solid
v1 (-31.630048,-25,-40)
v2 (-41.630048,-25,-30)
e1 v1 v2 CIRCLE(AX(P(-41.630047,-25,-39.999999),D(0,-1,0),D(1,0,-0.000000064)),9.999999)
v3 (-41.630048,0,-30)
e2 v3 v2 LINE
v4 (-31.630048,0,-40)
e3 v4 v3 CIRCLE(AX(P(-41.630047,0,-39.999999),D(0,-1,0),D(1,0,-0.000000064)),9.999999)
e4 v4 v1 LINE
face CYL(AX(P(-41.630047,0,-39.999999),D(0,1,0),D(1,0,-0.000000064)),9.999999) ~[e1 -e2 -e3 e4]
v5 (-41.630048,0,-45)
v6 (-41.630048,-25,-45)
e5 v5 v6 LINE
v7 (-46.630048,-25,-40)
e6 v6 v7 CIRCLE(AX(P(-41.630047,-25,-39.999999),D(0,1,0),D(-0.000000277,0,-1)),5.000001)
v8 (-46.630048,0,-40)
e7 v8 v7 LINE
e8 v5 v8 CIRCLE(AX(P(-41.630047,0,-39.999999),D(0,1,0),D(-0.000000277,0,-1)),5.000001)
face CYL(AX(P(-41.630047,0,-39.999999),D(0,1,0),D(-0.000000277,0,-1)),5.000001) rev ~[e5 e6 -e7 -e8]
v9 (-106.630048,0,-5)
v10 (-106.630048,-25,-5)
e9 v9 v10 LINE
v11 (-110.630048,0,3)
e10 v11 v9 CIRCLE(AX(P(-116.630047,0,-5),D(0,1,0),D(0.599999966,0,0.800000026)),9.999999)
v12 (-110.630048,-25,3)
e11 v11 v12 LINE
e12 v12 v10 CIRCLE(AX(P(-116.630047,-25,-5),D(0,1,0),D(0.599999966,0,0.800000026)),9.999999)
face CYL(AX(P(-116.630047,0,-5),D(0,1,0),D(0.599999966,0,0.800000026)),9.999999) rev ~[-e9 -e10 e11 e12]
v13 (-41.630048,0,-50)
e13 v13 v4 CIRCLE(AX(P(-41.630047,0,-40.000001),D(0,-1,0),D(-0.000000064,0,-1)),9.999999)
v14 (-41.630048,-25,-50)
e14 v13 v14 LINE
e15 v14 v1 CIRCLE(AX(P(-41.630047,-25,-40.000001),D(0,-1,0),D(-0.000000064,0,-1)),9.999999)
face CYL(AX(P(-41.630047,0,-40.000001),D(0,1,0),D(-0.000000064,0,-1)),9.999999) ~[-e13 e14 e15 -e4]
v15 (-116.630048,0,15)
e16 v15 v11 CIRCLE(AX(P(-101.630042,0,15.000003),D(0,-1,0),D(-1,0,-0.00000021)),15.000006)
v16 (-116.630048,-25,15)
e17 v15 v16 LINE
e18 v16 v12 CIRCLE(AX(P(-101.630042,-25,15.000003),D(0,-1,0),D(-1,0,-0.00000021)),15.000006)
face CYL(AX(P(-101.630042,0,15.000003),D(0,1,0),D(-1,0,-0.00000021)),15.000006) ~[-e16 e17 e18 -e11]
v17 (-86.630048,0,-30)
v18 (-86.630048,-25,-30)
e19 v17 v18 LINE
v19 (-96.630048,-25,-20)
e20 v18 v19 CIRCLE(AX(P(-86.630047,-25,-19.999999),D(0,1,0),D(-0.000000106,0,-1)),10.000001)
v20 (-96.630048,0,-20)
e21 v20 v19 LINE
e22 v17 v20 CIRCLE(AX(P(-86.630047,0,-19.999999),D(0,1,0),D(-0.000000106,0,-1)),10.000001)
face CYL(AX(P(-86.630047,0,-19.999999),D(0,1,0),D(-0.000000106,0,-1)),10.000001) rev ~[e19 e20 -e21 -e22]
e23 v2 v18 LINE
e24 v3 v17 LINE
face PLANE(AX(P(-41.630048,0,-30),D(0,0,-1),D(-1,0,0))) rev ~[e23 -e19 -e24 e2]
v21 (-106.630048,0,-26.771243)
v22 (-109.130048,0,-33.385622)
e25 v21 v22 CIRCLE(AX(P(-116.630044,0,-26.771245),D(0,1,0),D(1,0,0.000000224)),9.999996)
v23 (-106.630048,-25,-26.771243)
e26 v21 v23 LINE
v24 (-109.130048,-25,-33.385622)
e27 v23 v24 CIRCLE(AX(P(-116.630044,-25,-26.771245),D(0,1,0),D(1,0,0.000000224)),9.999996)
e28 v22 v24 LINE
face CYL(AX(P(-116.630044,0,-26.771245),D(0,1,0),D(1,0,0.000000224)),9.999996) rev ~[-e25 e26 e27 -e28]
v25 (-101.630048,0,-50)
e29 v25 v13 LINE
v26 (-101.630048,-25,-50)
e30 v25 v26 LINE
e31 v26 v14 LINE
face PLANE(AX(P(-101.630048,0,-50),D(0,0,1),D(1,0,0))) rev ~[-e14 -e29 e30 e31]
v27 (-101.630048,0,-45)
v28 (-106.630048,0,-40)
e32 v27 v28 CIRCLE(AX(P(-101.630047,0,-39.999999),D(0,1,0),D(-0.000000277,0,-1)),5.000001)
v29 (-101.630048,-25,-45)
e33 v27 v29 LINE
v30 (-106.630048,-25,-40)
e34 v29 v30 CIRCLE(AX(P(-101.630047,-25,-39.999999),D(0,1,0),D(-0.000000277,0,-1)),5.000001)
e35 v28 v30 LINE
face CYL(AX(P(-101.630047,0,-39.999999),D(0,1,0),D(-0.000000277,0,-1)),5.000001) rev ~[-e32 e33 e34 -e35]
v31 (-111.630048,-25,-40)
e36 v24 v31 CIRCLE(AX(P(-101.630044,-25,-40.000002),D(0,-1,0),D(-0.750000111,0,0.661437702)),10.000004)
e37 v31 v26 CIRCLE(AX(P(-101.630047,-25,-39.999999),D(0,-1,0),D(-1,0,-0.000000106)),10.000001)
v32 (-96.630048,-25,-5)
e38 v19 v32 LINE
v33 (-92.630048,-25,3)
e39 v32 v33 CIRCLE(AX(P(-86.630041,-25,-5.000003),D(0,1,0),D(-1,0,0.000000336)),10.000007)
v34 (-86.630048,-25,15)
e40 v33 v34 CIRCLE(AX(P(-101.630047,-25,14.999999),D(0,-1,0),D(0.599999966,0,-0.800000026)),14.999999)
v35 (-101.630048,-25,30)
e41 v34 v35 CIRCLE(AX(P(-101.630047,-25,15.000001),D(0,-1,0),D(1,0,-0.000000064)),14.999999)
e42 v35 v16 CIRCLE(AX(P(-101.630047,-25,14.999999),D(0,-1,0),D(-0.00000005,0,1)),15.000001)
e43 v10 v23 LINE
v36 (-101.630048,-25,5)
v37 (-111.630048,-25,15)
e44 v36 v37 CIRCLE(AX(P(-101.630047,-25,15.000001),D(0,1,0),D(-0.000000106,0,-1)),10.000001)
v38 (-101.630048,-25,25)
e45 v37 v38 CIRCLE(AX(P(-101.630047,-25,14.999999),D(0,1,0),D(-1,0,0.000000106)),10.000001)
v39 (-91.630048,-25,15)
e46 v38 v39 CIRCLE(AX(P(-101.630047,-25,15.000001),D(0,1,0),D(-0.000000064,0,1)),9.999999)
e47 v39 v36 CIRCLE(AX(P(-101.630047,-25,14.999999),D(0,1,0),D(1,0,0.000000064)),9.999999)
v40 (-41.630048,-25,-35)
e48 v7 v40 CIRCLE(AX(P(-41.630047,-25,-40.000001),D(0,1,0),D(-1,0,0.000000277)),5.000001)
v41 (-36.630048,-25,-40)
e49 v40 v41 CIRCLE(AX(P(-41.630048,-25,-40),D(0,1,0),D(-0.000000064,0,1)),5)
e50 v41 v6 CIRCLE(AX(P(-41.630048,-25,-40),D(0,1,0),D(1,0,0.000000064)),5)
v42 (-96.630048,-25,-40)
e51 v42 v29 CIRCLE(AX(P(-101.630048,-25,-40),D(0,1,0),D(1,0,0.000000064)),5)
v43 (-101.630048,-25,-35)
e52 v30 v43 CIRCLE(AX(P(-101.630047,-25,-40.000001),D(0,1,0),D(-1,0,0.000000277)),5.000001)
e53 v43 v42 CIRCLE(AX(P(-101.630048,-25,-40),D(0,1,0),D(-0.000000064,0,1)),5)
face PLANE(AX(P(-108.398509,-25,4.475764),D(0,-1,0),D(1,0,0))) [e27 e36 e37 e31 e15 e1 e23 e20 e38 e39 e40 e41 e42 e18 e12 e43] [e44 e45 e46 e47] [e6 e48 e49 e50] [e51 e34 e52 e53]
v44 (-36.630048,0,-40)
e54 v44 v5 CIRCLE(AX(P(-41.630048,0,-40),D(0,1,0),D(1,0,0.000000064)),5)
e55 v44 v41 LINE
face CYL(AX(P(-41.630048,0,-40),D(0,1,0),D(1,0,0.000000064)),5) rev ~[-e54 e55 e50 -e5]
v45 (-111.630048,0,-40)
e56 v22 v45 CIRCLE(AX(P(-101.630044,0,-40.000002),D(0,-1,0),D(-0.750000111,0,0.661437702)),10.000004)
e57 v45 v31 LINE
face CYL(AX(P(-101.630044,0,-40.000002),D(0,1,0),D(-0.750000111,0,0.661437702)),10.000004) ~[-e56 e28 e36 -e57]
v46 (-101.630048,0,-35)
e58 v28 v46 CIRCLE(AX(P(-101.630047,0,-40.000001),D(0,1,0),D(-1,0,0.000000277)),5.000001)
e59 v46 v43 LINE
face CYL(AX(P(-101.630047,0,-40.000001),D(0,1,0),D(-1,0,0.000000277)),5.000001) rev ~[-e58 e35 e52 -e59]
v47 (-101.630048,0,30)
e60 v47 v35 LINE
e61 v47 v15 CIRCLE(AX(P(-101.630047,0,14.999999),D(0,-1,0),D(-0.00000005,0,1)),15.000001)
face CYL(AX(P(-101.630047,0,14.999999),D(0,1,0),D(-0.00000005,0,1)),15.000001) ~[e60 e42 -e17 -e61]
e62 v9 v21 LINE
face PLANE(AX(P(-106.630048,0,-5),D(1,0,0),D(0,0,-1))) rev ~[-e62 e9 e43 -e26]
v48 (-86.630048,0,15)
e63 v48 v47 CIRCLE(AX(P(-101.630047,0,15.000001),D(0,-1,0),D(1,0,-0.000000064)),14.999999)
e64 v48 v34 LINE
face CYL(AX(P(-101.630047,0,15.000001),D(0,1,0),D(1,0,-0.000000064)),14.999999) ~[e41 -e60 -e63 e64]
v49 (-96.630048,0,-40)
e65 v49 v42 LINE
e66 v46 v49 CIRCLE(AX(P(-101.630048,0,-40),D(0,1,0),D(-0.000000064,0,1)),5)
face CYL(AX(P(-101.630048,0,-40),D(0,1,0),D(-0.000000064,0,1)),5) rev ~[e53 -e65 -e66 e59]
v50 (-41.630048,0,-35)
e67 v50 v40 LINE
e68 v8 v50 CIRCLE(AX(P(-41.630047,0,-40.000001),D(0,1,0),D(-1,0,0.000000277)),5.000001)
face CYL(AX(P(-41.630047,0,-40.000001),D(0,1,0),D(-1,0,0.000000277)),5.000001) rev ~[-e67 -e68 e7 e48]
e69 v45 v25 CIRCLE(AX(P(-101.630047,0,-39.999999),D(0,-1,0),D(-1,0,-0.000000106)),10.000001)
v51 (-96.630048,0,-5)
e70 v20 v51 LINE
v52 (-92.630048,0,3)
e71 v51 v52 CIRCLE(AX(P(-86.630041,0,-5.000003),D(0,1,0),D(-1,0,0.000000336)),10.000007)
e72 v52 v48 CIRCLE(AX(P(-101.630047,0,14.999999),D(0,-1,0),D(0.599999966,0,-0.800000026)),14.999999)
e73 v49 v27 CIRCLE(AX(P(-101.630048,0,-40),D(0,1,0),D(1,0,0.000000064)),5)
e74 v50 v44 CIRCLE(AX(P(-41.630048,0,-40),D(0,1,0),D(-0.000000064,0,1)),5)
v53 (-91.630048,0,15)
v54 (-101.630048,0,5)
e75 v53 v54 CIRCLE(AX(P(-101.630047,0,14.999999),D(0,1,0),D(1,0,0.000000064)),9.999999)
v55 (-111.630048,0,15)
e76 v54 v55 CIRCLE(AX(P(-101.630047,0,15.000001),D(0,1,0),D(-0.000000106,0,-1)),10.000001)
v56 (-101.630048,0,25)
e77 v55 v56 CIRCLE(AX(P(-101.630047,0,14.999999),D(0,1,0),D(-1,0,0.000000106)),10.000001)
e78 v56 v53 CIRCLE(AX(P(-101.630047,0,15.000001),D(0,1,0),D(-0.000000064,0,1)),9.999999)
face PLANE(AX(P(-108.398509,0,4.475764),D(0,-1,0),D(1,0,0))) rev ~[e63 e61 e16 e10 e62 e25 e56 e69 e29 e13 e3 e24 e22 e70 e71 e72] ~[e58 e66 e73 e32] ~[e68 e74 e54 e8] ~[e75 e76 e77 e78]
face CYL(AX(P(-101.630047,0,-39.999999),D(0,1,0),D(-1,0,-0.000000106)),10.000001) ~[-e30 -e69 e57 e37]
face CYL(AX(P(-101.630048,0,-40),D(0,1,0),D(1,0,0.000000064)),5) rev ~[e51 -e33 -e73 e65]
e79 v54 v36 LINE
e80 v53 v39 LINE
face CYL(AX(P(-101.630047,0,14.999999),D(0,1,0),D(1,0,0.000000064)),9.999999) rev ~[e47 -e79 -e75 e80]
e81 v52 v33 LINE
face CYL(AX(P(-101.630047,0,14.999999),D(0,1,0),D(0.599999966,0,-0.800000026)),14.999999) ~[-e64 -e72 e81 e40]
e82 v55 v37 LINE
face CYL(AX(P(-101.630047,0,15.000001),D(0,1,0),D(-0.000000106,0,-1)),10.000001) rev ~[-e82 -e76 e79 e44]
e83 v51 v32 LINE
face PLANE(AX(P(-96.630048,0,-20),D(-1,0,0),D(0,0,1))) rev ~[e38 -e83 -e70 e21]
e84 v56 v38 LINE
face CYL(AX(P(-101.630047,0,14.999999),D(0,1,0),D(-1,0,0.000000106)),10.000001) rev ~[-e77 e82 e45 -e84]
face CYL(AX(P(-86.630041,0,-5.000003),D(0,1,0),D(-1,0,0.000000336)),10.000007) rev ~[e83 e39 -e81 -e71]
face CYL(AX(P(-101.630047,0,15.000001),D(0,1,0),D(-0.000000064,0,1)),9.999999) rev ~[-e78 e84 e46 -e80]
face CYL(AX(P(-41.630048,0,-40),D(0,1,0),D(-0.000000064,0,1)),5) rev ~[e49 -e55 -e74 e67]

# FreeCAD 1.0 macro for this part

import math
import FreeCAD as App
import Part
import Sketcher
from FreeCAD import Vector

doc = App.newDocument("Part")
body = doc.addObject("PartDesign::Body", "Body")

sketch1 = body.newObject("Sketcher::SketchObject", "Sketch")
sketch1.AttachmentSupport = (doc.getObject("XZ_Plane"), [""])
sketch1.MapMode = "FlatFace"
sketch1.addGeometry([
    Part.ArcOfCircle(Part.Circle(Vector(-86.6, -20, 0), Vector(0, 0, 1), 10), math.radians(-180), math.radians(-90)),
    Part.LineSegment(Vector(-96.6, -20, 0), Vector(-96.6, -5, 0)),
    Part.ArcOfCircle(Part.Circle(Vector(-86.6, -5, 0), Vector(0, 0, 1), 10), math.radians(127), math.radians(180)),
    Part.ArcOfCircle(Part.Circle(Vector(-101.6, 15, 0), Vector(0, 0, 1), 15), math.radians(-53), math.radians(0)),
    Part.ArcOfCircle(Part.Circle(Vector(-101.6, 15, 0), Vector(0, 0, 1), 15), math.radians(0), math.radians(90)),
    Part.ArcOfCircle(Part.Circle(Vector(-101.6, 15, 0), Vector(0, 0, 1), 15), math.radians(90), math.radians(180)),
    Part.ArcOfCircle(Part.Circle(Vector(-101.6, 15, 0), Vector(0, 0, 1), 15), math.radians(-180), math.radians(-127)),
    Part.ArcOfCircle(Part.Circle(Vector(-116.6, -5, 0), Vector(0, 0, 1), 10), math.radians(0), math.radians(53)),
    Part.LineSegment(Vector(-106.6, -5, 0), Vector(-106.6, -26.8, 0)),
    Part.ArcOfCircle(Part.Circle(Vector(-116.6, -26.8, 0), Vector(0, 0, 1), 10), math.radians(-41), math.radians(0)),
    Part.ArcOfCircle(Part.Circle(Vector(-101.6, -40, 0), Vector(0, 0, 1), 10), math.radians(139), math.radians(180)),
    Part.ArcOfCircle(Part.Circle(Vector(-101.6, -40, 0), Vector(0, 0, 1), 10), math.radians(-180), math.radians(-90)),
    Part.LineSegment(Vector(-101.6, -50, 0), Vector(-41.6, -50, 0)),
    Part.ArcOfCircle(Part.Circle(Vector(-41.6, -40, 0), Vector(0, 0, 1), 10), math.radians(-90), math.radians(0)),
    Part.ArcOfCircle(Part.Circle(Vector(-41.6, -40, 0), Vector(0, 0, 1), 10), math.radians(0), math.radians(90)),
    Part.LineSegment(Vector(-41.6, -30, 0), Vector(-86.6, -30, 0)),
    Part.ArcOfCircle(Part.Circle(Vector(-101.6, -40, 0), Vector(0, 0, 1), 5), math.radians(0), math.radians(90)),
    Part.ArcOfCircle(Part.Circle(Vector(-101.6, -40, 0), Vector(0, 0, 1), 5), math.radians(-90), math.radians(0)),
    Part.ArcOfCircle(Part.Circle(Vector(-101.6, -40, 0), Vector(0, 0, 1), 5), math.radians(-180), math.radians(-90)),
    Part.ArcOfCircle(Part.Circle(Vector(-101.6, -40, 0), Vector(0, 0, 1), 5), math.radians(90), math.radians(180)),
    Part.ArcOfCircle(Part.Circle(Vector(-41.6, -40, 0), Vector(0, 0, 1), 5), math.radians(-90), math.radians(0)),
    Part.ArcOfCircle(Part.Circle(Vector(-41.6, -40, 0), Vector(0, 0, 1), 5), math.radians(-180), math.radians(-90)),
    Part.ArcOfCircle(Part.Circle(Vector(-41.6, -40, 0), Vector(0, 0, 1), 5), math.radians(90), math.radians(180)),
    Part.ArcOfCircle(Part.Circle(Vector(-41.6, -40, 0), Vector(0, 0, 1), 5), math.radians(0), math.radians(90)),
    Part.ArcOfCircle(Part.Circle(Vector(-101.6, 15, 0), Vector(0, 0, 1), 10), math.radians(0), math.radians(90)),
    Part.ArcOfCircle(Part.Circle(Vector(-101.6, 15, 0), Vector(0, 0, 1), 10), math.radians(-90), math.radians(0)),
    Part.ArcOfCircle(Part.Circle(Vector(-101.6, 15, 0), Vector(0, 0, 1), 10), math.radians(-180), math.radians(-90)),
    Part.ArcOfCircle(Part.Circle(Vector(-101.6, 15, 0), Vector(0, 0, 1), 10), math.radians(90), math.radians(180)),
], False)
sketch1.addConstraint([
    Sketcher.Constraint("Tangent", 0, 1, 1, 1),
    Sketcher.Constraint("Tangent", 1, 2, 2, 2),
    Sketcher.Constraint("Tangent", 2, 1, 3, 1),
    Sketcher.Constraint("Tangent", 3, 2, 4, 1),
    Sketcher.Constraint("Tangent", 4, 2, 5, 1),
    Sketcher.Constraint("Tangent", 5, 2, 6, 1),
    Sketcher.Constraint("Tangent", 6, 2, 7, 2),
    Sketcher.Constraint("Tangent", 7, 1, 8, 1),
    Sketcher.Constraint("Tangent", 8, 2, 9, 2),
    Sketcher.Constraint("Tangent", 9, 1, 10, 1),
    Sketcher.Constraint("Tangent", 10, 2, 11, 1),
    Sketcher.Constraint("Tangent", 11, 2, 12, 1),
    Sketcher.Constraint("Tangent", 12, 2, 13, 1),
    Sketcher.Constraint("Tangent", 13, 2, 14, 1),
    Sketcher.Constraint("Tangent", 14, 2, 15, 1),
    Sketcher.Constraint("Tangent", 15, 2, 0, 2),
    Sketcher.Constraint("Tangent", 16, 1, 17, 2),
    Sketcher.Constraint("Tangent", 17, 1, 18, 2),
    Sketcher.Constraint("Tangent", 18, 1, 19, 2),
    Sketcher.Constraint("Tangent", 19, 1, 16, 2),
    Sketcher.Constraint("Tangent", 20, 1, 21, 2),
    Sketcher.Constraint("Tangent", 21, 1, 22, 2),
    Sketcher.Constraint("Tangent", 22, 1, 23, 2),
    Sketcher.Constraint("Tangent", 23, 1, 20, 2),
    Sketcher.Constraint("Tangent", 24, 1, 25, 2),
    Sketcher.Constraint("Tangent", 25, 1, 26, 2),
    Sketcher.Constraint("Tangent", 26, 1, 27, 2),
    Sketcher.Constraint("Tangent", 27, 1, 24, 2),
    Sketcher.Constraint("Vertical", 1),
    Sketcher.Constraint("Vertical", 8),
    Sketcher.Constraint("Horizontal", 12),
    Sketcher.Constraint("Horizontal", 15),
    Sketcher.Constraint("Coincident", 5, 3, 3, 3),
    Sketcher.Constraint("Coincident", 16, 3, 10, 3),
    Sketcher.Constraint("Coincident", 20, 3, 13, 3),
    Sketcher.Constraint("Coincident", 24, 3, 3, 3),
    Sketcher.Constraint("Equal", 0, 7),
    Sketcher.Constraint("Equal", 7, 11),
    Sketcher.Constraint("Equal", 11, 13),
    Sketcher.Constraint("Equal", 13, 14),
    Sketcher.Constraint("Equal", 16, 17),
    Sketcher.Constraint("Equal", 19, 20),
    Sketcher.Constraint("Equal", 20, 21),
    Sketcher.Constraint("Equal", 14, 24),
    Sketcher.Constraint("Equal", 24, 25),
    Sketcher.Constraint("Horizontal", 7, 3, 1, 2),
    Sketcher.Constraint("Horizontal", 27, 3, 3, 2),
    Sketcher.Constraint("Horizontal", 3, 2, 5, 2),
    Sketcher.Constraint("Horizontal", 2, 1, 6, 2),
    Sketcher.Constraint("Horizontal", 23, 3, 10, 2),
    Sketcher.Constraint("Horizontal", 10, 2, 13, 2),
    Sketcher.Constraint("Horizontal", 13, 2, 16, 1),
    Sketcher.Constraint("Horizontal", 16, 1, 18, 1),
    Sketcher.Constraint("Horizontal", 18, 1, 21, 1),
    Sketcher.Constraint("Horizontal", 21, 1, 23, 1),
    Sketcher.Constraint("Horizontal", 5, 2, 24, 1),
    Sketcher.Constraint("Horizontal", 24, 1, 26, 1),
    Sketcher.Constraint("Vertical", 6, 3, 10, 3),
    Sketcher.Constraint("Vertical", 5, 3, 11, 3),
    Sketcher.Constraint("Vertical", 5, 3, 16, 3),
    Sketcher.Constraint("Vertical", 0, 3, 3, 2),
    Sketcher.Constraint("Vertical", 27, 3, 4, 2),
    Sketcher.Constraint("Vertical", 1, 2, 16, 1),
    Sketcher.Constraint("Vertical", 11, 2, 17, 1),
    Sketcher.Constraint("Vertical", 17, 1, 19, 1),
    Sketcher.Constraint("Vertical", 14, 2, 20, 1),
    Sketcher.Constraint("Vertical", 20, 1, 22, 1),
    Sketcher.Constraint("Vertical", 19, 1, 25, 1),
    Sketcher.Constraint("Vertical", 25, 1, 27, 1),
    Sketcher.Constraint("Radius", 0, 10.000001),
    Sketcher.Constraint("Radius", 3, 14.999999),
    Sketcher.Constraint("DistanceX", 12, 1, 12, 2, 60.0),
    Sketcher.Constraint("DistanceY", 1, 1, 1, 2, 15.0),
    Sketcher.Constraint("DistanceY", 0, 3, -1, 1, 19.999999),
    Sketcher.Constraint("DistanceX", 9, 3, 10, 3, 15.0),
    Sketcher.Constraint("DistanceX", 2, 3, -1, 1, 86.630041),
])
pad1 = body.newObject("PartDesign::Pad", "Pad")
pad1.Profile = sketch1
pad1.Length = 25

doc.recompute()
